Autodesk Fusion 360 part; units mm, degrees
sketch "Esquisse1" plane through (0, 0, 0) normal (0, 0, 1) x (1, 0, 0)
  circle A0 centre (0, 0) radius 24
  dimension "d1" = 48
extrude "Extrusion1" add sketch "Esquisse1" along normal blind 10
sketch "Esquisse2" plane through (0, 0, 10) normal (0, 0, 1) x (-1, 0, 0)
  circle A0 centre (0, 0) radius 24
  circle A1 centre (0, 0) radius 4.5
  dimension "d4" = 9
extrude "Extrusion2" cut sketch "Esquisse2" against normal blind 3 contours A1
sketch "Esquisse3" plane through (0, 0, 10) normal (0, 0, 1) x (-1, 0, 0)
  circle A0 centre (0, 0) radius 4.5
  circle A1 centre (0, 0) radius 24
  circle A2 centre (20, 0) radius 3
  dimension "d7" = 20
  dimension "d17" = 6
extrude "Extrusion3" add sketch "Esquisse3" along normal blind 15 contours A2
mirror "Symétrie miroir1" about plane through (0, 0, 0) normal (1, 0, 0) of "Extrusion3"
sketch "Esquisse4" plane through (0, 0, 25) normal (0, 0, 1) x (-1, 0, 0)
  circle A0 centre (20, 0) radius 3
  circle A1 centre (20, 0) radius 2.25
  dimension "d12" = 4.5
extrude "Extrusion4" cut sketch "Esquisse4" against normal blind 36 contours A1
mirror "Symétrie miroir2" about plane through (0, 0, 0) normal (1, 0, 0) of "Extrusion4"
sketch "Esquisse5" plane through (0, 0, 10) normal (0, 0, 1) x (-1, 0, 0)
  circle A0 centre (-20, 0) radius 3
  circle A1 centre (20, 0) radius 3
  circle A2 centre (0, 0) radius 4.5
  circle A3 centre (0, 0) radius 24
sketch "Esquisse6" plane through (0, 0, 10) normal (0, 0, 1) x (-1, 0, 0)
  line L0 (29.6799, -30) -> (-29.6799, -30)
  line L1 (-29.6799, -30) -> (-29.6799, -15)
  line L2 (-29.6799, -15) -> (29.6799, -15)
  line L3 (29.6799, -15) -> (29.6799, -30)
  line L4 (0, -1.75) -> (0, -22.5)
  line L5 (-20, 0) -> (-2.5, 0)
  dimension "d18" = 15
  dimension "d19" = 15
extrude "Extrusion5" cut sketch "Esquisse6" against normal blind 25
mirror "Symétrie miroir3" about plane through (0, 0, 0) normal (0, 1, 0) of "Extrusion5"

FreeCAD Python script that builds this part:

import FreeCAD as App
import Part
import Sketcher

V = App.Vector
Q = App.Units.Quantity


def add_polygon(sketch, points):
    """Adds a closed chain of lines whose ends are joined by coincident constraints."""
    first, n = sketch.GeometryCount, len(points)
    for a, b in zip(points, points[1:] + points[:1]):
        sketch.addGeometry(Part.LineSegment(App.Vector(*a, 0), App.Vector(*b, 0)), False)
    for i in range(n):
        sketch.addConstraint(Sketcher.Constraint("Coincident", first + i, 2, first + (i + 1) % n, 1))

doc = App.newDocument("Part")
body = doc.addObject("PartDesign::Body", "Body")

# Sketch on XY plane
sketch1 = doc.addObject("Sketcher::SketchObject", "Sketch")
body.addObject(sketch1)
sketch1.AttachmentSupport = (doc.XY_Plane, [""])
sketch1.MapMode = "FlatFace"
sketch1.addGeometry(Part.Circle(V(0, 0, 0), V(0, 0, 1), 24), False)
sketch1.addConstraint(Sketcher.Constraint("Coincident", 0, 3, -1, 1))
sketch1.addConstraint(Sketcher.Constraint("Diameter", 0, Q("48 mm")))
pad1 = doc.addObject("PartDesign::Pad", "Pad")
body.addObject(pad1)
pad1.Profile = sketch1
pad1.Length = 10

# Sketch on XY plane
sketch2 = doc.addObject("Sketcher::SketchObject", "Sketch001")
body.addObject(sketch2)
sketch2.AttachmentSupport = (doc.XY_Plane, [""])
sketch2.MapMode = "FlatFace"
sketch2.AttachmentOffset = App.Placement(V(0, 0, 10), App.Rotation())
sketch2.addGeometry(Part.Circle(V(0, 0, 0), V(0, 0, 1), 4.5), False)
sketch2.addConstraint(Sketcher.Constraint("Coincident", 0, 3, -1, 1))
sketch2.addConstraint(Sketcher.Constraint("Diameter", 0, Q("9 mm")))
pocket1 = doc.addObject("PartDesign::Pocket", "Pocket")
body.addObject(pocket1)
pocket1.Profile = sketch2
pocket1.Length = 3

# Sketch on XY plane
sketch3 = doc.addObject("Sketcher::SketchObject", "Sketch002")
body.addObject(sketch3)
sketch3.AttachmentSupport = (doc.XY_Plane, [""])
sketch3.MapMode = "FlatFace"
sketch3.AttachmentOffset = App.Placement(V(0, 0, 10), App.Rotation())
sketch3.addGeometry(Part.Circle(V(-20, 0, 0), V(0, 0, 1), 3), False)
sketch3.addConstraint(Sketcher.Constraint("PointOnObject", 0, 3, -1))
sketch3.addConstraint(Sketcher.Constraint("Diameter", 0, Q("6 mm")))
sketch3.addConstraint(Sketcher.Constraint("DistanceX", 0, 3, -1, 1, Q("20 mm")))
pad2 = doc.addObject("PartDesign::Pad", "Pad001")
body.addObject(pad2)
pad2.Profile = sketch3
pad2.Length = 15
doc.recompute()

mirrored = doc.addObject("PartDesign::Mirrored", "Mirrored")
body.addObject(mirrored)
mirrored.Originals = [pad2]
mirrored.MirrorPlane = (doc.YZ_Plane, [""])
body.Tip = mirrored

# Sketch on XY plane
sketch4 = doc.addObject("Sketcher::SketchObject", "Sketch003")
body.addObject(sketch4)
sketch4.AttachmentSupport = (doc.XY_Plane, [""])
sketch4.MapMode = "FlatFace"
sketch4.AttachmentOffset = App.Placement(V(0, 0, 25), App.Rotation())
sketch4.addGeometry(Part.Circle(V(-20, 0, 0), V(0, 0, 1), 2.25), False)
sketch4.addConstraint(Sketcher.Constraint("PointOnObject", 0, 3, -1))
sketch4.addConstraint(Sketcher.Constraint("Diameter", 0, Q("4.5 mm")))
sketch4.addConstraint(Sketcher.Constraint("DistanceX", 0, 3, -1, 1, Q("20 mm")))
pocket2 = doc.addObject("PartDesign::Pocket", "Pocket001")
body.addObject(pocket2)
pocket2.Profile = sketch4
pocket2.Length = 36
doc.recompute()

mirrored2 = doc.addObject("PartDesign::Mirrored", "Mirrored001")
body.addObject(mirrored2)
mirrored2.Originals = [pocket2]
mirrored2.MirrorPlane = (doc.YZ_Plane, [""])
body.Tip = mirrored2

# Sketch on XY plane
sketch5 = doc.addObject("Sketcher::SketchObject", "Sketch004")
body.addObject(sketch5)
sketch5.AttachmentSupport = (doc.XY_Plane, [""])
sketch5.MapMode = "FlatFace"
sketch5.AttachmentOffset = App.Placement(V(0, 0, 10), App.Rotation())
add_polygon(sketch5, [(29.6799, 30), (-29.6799, 30), (-29.6799, 15), (29.6799, 15)])  # lines 0-3
sketch5.addConstraint(Sketcher.Constraint("Horizontal", 0))
sketch5.addConstraint(Sketcher.Constraint("Vertical", 1))
sketch5.addConstraint(Sketcher.Constraint("Horizontal", 2))
sketch5.addConstraint(Sketcher.Constraint("Vertical", 3))
sketch5.addConstraint(Sketcher.Constraint("DistanceY", 1, 2, 1, 1, Q("15 mm")))
sketch5.addConstraint(Sketcher.Constraint("DistanceY", -1, 1, 1, 2, Q("15 mm")))
sketch5.addConstraint(Sketcher.Constraint("DistanceX", 0, 2, -1, 1, Q("29.68 mm")))
sketch5.addConstraint(Sketcher.Constraint("DistanceX", -1, 1, 2, 2, Q("29.68 mm")))
pocket3 = doc.addObject("PartDesign::Pocket", "Pocket002")
body.addObject(pocket3)
pocket3.Profile = sketch5
pocket3.Length = 25
doc.recompute()

mirrored3 = doc.addObject("PartDesign::Mirrored", "Mirrored002")
body.addObject(mirrored3)
mirrored3.Originals = [pocket3]
mirrored3.MirrorPlane = (doc.XZ_Plane, [""])
body.Tip = mirrored3

doc.recompute()
